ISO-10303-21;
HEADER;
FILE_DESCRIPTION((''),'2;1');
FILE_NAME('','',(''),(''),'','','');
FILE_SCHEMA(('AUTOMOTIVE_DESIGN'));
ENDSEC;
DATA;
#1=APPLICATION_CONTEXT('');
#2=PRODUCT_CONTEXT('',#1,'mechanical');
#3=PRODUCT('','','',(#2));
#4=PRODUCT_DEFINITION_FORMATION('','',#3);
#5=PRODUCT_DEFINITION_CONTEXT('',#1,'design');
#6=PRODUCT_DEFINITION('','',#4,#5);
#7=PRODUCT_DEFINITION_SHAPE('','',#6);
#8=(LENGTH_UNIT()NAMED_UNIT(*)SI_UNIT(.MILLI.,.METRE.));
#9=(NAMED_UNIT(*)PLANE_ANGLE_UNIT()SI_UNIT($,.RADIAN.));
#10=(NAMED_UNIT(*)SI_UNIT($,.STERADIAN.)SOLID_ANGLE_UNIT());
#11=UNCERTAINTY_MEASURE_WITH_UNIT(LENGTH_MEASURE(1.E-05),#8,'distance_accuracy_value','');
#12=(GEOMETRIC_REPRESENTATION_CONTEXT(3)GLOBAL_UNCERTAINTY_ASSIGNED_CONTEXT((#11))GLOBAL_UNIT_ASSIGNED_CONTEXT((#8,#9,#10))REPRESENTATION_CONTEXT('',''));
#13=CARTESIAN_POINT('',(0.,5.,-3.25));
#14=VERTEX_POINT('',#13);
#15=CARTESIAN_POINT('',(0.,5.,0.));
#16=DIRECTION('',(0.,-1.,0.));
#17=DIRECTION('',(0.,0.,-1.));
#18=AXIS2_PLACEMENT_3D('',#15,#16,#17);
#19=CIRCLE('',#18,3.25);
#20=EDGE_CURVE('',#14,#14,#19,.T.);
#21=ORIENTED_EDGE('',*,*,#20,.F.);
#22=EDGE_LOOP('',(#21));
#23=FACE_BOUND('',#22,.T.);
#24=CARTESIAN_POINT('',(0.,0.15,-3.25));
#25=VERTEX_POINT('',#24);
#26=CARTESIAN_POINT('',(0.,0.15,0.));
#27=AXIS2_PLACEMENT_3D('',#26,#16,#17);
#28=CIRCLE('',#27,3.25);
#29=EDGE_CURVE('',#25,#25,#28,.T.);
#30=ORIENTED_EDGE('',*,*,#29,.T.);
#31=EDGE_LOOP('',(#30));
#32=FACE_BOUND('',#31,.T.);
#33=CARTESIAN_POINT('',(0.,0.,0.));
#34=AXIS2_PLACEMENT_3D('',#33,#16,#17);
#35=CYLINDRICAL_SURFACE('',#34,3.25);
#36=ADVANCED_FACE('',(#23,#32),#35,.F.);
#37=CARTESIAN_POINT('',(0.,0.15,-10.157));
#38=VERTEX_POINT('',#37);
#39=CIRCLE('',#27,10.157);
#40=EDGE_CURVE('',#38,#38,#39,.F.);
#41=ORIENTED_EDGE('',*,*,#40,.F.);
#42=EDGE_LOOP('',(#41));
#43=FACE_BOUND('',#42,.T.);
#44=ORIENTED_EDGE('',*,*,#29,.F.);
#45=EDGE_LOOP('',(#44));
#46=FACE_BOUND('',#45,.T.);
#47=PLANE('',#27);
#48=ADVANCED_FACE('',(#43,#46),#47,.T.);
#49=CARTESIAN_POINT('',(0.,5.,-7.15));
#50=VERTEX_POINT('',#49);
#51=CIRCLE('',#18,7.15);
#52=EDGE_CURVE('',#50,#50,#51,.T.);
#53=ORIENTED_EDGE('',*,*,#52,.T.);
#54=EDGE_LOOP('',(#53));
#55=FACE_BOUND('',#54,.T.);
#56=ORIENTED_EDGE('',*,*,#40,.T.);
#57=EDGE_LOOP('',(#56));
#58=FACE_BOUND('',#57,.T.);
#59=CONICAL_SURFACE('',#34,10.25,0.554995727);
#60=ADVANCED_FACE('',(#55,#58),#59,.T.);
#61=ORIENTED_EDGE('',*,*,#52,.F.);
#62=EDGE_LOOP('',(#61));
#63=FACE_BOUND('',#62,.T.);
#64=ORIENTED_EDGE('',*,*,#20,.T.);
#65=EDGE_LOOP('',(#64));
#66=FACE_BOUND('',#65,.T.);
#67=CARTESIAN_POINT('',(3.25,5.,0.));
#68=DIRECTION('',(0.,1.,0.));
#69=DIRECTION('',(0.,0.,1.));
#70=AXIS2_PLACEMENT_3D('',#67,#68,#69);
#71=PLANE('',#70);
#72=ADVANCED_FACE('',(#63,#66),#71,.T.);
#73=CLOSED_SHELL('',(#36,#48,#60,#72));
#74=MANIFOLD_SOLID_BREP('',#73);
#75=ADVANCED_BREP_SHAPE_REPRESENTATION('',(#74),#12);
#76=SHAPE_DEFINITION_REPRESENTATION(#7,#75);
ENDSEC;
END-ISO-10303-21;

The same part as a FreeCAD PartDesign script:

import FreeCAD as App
import Part
import Sketcher

V = App.Vector
Q = App.Units.Quantity


def add_polygon(sketch, points):
    """Adds a closed chain of lines whose ends are joined by coincident constraints."""
    first, n = sketch.GeometryCount, len(points)
    for a, b in zip(points, points[1:] + points[:1]):
        sketch.addGeometry(Part.LineSegment(App.Vector(*a, 0), App.Vector(*b, 0)), False)
    for i in range(n):
        sketch.addConstraint(Sketcher.Constraint("Coincident", first + i, 2, first + (i + 1) % n, 1))

doc = App.newDocument("Part")
body = doc.addObject("PartDesign::Body", "Body")

# Sketch on XY plane
sketch1 = body.newObject("Sketcher::SketchObject", "Sketch")
sketch1.AttachmentSupport = (doc.getObject("XY_Plane"), [""])
sketch1.MapMode = "FlatFace"
add_polygon(sketch1, [(3.25, 5), (3.25, 0), (10.25, 0), (7.15, 5)])  # lines 0-3
sketch1.addConstraint([
    Sketcher.Constraint("Vertical", 0),
    Sketcher.Constraint("Horizontal", 1),
    Sketcher.Constraint("Horizontal", 3),
    Sketcher.Constraint("PointOnObject", 0, 2, -1),
    Sketcher.Constraint("DistanceX", 1, 1, 1, 2, Q("7 mm")),
    Sketcher.Constraint("DistanceY", 0, 2, 0, 1, Q("5 mm")),
    Sketcher.Constraint("DistanceX", 3, 2, 3, 1, Q("3.9 mm")),
    Sketcher.Constraint("DistanceX", -1, 1, 0, 2, Q("3.25 mm")),
])
revolution = body.newObject("PartDesign::Revolution", "Revolution")
revolution.Profile = sketch1
revolution.ReferenceAxis = (sketch1, ["V_Axis"])
revolution.Angle = 360

# Sketch on XZ plane
sketch2 = body.newObject("Sketcher::SketchObject", "Sketch001")
sketch2.AttachmentSupport = (doc.getObject("XZ_Plane"), [""])
sketch2.MapMode = "FlatFace"
sketch2.AttachmentOffset = App.Placement(V(0, 0, -0.15), App.Rotation())
sketch2.addGeometry([
    Part.Circle(V(0, 0, 0), V(0, 0, 1), 10.25),
    Part.Circle(V(0, 0, 0), V(0, 0, 1), 3.25),
], False)
sketch2.addConstraint([
    Sketcher.Constraint("Coincident", 0, 3, -1, 1),
    Sketcher.Constraint("Coincident", 1, 3, -1, 1),
    Sketcher.Constraint("Diameter", 0, Q("20.5 mm")),
    Sketcher.Constraint("Diameter", 1, Q("6.5 mm")),
])
pocket1 = body.newObject("PartDesign::Pocket", "Pocket")
pocket1.Profile = sketch2
pocket1.Length = 0.15
pocket1.Reversed = True

doc.recompute()
